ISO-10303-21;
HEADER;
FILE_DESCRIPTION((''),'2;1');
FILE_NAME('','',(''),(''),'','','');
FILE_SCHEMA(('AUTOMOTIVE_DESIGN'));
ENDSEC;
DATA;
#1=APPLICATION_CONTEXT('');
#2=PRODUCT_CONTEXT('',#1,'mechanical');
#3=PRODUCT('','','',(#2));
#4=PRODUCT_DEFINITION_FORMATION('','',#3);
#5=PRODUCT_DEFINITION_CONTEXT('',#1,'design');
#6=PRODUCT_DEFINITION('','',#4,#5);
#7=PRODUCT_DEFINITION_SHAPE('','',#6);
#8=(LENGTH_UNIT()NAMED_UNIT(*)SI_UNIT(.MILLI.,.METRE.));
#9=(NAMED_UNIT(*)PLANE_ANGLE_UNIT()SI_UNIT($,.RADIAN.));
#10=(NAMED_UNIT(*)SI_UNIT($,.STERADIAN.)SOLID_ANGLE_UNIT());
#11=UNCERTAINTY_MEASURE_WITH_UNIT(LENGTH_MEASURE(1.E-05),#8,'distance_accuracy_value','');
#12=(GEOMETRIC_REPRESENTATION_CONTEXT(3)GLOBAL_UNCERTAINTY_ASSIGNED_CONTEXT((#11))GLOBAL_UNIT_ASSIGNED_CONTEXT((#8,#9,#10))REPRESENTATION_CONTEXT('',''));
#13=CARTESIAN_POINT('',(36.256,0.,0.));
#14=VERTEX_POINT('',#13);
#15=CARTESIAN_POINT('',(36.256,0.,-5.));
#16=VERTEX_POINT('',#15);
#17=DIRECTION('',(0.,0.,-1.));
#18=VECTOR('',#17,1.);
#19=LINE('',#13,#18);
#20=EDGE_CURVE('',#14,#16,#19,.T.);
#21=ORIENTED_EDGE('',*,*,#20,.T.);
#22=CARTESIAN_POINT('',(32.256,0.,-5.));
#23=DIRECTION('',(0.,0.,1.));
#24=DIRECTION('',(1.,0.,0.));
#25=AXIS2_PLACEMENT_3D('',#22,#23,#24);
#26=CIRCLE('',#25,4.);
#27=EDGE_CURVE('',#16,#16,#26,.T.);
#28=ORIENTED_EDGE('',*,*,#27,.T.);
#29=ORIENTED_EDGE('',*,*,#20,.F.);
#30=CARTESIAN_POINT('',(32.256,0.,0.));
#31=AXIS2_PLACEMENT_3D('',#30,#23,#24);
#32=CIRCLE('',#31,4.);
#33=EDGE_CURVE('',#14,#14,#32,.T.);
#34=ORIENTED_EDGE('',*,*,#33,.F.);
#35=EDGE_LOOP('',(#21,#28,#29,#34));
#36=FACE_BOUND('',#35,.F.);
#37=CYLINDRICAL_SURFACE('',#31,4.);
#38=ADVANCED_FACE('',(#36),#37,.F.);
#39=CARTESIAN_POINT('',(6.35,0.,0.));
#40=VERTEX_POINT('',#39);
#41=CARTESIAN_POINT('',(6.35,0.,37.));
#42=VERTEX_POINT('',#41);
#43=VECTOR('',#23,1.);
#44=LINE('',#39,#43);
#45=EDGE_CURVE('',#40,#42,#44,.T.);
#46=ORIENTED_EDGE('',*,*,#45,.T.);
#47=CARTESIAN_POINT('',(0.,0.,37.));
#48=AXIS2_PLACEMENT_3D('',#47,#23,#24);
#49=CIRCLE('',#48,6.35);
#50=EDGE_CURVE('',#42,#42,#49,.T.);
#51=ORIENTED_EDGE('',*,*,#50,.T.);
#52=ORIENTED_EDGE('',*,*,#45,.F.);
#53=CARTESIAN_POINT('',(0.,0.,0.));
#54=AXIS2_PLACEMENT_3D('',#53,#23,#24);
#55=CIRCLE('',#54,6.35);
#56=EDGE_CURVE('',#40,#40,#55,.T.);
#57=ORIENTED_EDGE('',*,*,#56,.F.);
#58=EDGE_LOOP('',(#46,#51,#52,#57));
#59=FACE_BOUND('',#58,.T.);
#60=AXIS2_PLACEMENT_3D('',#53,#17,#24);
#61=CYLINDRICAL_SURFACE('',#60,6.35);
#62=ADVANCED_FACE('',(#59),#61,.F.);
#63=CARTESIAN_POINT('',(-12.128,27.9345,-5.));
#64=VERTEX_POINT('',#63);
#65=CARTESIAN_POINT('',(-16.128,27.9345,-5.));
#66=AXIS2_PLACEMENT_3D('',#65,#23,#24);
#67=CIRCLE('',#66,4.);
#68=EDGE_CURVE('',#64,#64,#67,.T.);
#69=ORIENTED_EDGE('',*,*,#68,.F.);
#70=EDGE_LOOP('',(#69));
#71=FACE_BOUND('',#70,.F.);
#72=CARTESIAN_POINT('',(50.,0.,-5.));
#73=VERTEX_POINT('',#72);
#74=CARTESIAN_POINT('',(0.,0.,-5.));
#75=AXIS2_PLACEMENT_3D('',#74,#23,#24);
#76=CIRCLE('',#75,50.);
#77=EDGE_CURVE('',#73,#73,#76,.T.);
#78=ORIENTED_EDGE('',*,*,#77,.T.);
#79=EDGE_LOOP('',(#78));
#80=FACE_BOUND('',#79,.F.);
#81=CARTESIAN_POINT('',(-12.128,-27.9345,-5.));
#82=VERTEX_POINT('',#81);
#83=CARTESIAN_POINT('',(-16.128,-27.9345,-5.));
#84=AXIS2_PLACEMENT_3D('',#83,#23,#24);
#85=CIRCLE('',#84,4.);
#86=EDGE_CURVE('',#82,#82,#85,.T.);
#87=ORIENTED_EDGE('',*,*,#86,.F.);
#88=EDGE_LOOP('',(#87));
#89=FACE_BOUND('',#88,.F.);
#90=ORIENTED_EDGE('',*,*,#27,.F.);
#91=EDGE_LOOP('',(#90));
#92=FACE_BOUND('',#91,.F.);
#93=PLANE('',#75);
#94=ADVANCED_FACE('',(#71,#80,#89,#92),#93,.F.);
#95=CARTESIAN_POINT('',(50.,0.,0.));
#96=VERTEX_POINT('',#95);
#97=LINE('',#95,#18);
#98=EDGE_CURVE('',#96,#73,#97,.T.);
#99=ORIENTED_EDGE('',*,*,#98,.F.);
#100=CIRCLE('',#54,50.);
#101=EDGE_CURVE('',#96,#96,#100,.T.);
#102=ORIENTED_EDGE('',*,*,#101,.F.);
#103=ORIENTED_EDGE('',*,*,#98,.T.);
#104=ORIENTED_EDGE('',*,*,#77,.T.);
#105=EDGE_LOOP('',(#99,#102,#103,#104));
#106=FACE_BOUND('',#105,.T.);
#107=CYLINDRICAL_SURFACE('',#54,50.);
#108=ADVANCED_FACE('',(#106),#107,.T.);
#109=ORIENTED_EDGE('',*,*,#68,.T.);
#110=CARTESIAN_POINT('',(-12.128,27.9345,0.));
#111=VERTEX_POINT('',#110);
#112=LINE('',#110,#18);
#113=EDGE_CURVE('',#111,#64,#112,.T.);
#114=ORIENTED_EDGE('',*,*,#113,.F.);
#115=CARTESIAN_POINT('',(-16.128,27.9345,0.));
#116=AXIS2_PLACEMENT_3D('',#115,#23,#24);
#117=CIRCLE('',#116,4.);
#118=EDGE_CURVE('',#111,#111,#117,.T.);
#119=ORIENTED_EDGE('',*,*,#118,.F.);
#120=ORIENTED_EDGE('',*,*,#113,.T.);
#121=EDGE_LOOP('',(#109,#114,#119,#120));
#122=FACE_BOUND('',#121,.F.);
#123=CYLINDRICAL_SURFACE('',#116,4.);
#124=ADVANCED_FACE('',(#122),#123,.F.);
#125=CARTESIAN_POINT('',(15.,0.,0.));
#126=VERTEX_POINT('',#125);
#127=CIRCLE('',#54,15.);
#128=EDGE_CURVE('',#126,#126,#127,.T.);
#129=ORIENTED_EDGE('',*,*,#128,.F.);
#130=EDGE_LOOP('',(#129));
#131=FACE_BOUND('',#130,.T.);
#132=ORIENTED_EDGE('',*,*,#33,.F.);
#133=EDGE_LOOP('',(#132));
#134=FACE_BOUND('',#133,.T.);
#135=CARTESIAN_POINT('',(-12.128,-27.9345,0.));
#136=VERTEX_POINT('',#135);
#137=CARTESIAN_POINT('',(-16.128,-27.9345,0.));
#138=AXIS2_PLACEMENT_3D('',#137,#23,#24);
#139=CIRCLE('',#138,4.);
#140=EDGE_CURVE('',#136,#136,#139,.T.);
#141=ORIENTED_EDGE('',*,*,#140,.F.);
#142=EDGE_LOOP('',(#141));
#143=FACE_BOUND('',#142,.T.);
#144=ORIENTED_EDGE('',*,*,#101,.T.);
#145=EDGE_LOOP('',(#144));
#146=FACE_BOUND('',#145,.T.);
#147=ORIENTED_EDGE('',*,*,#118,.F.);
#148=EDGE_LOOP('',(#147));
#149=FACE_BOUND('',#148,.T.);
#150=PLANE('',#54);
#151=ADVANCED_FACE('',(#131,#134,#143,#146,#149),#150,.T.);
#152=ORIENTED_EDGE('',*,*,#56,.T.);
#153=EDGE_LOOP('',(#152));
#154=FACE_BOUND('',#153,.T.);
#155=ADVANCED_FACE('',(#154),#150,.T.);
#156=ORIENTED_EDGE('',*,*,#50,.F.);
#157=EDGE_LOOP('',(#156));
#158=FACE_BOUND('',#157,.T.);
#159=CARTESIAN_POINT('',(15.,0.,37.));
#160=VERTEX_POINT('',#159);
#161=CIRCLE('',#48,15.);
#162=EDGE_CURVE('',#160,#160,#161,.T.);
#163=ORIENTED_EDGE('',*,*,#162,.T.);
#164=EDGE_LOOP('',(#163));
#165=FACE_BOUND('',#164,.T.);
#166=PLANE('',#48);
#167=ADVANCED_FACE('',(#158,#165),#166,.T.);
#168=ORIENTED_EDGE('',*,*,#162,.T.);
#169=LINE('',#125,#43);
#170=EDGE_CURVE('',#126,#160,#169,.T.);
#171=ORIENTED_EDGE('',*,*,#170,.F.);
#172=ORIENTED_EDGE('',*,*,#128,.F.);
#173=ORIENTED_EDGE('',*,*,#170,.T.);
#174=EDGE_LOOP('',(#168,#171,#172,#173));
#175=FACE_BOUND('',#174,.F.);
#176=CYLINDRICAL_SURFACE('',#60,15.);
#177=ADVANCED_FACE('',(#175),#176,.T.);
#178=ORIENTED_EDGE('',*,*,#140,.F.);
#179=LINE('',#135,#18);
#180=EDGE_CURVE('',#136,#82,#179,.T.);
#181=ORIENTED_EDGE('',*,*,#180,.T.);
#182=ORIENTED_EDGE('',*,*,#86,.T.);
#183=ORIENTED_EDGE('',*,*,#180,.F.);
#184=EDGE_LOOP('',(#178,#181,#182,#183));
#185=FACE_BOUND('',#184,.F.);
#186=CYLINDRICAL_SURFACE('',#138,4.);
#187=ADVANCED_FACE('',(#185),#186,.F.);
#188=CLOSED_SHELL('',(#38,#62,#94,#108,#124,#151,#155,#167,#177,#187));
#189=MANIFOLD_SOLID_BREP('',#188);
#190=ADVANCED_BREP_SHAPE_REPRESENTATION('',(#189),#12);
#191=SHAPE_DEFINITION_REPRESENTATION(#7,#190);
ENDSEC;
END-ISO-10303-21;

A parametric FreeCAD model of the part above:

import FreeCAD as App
import Part
import Sketcher
from FreeCAD import Vector

doc = App.newDocument("Part")
params = doc.addObject("Spreadsheet::Sheet", "Params")
for row, (alias, value) in enumerate([
    ("sketch1_diameter", "100 mm"),
    ("sketch1_diameter2", "8 mm"),
    ("pad1_length", "5 mm"),
    ("sketch2_diameter", "30 mm"),
    ("sketch2_diameter2", "12.7 mm"),
    ("pad2_length", "37 mm"),
], start=1):
    params.set(f"A{row}", alias)
    params.set(f"B{row}", "=" + value)
    params.setAlias(f"B{row}", alias)

body = doc.addObject("PartDesign::Body", "Body")

sketch1 = body.newObject("Sketcher::SketchObject", "Sketch")
sketch1.AttachmentSupport = (doc.getObject("XY_Plane"), [""])
sketch1.MapMode = "FlatFace"
sketch1.addGeometry(Part.Circle(Vector(0, 0, 0), Vector(0, 0, 1), 50), False)
sketch1.addGeometry(Part.Circle(Vector(-16.1, -27.9, 0), Vector(0, 0, 1), 4), False)
sketch1.addGeometry(Part.Circle(Vector(-16.1, 27.9, 0), Vector(0, 0, 1), 4), False)
sketch1.addGeometry(Part.Circle(Vector(32.3, 0, 0), Vector(0, 0, 1), 4), False)
sketch1.addConstraint(Sketcher.Constraint("Coincident", 0, 3, -1, 1))
sketch1.addConstraint(Sketcher.Constraint("Equal", 1, 2))
sketch1.addConstraint(Sketcher.Constraint("Equal", 2, 3))
sketch1.addConstraint(Sketcher.Constraint("Symmetric", 1, 3, 2, 3, -1))
sketch1.addConstraint(Sketcher.Constraint("PointOnObject", 3, 3, -1))
sketch1.addConstraint(Sketcher.Constraint("Diameter", 0, 100.0))
sketch1.addConstraint(Sketcher.Constraint("Diameter", 1, 8.0))
sketch1.addConstraint(Sketcher.Constraint("DistanceX", 1, 3, -1, 1, 16.128))
sketch1.addConstraint(Sketcher.Constraint("DistanceX", -1, 1, 3, 3, 32.256))
sketch1.addConstraint(Sketcher.Constraint("DistanceY", 1, 3, 2, 3, 55.869))
sketch1.setExpression("Constraints[5]", "Params.sketch1_diameter")
sketch1.setExpression("Constraints[6]", "Params.sketch1_diameter2")
pad1 = body.newObject("PartDesign::Pad", "Pad")
pad1.Profile = sketch1
pad1.setExpression("Length", "Params.pad1_length")
pad1.Reversed = True

sketch2 = body.newObject("Sketcher::SketchObject", "Sketch001")
sketch2.AttachmentSupport = (doc.getObject("XY_Plane"), [""])
sketch2.MapMode = "FlatFace"
sketch2.addGeometry(Part.Circle(Vector(0, 0, 0), Vector(0, 0, 1), 15), False)
sketch2.addGeometry(Part.Circle(Vector(0, 0, 0), Vector(0, 0, 1), 6), False)
sketch2.addConstraint(Sketcher.Constraint("Coincident", 0, 3, -1, 1))
sketch2.addConstraint(Sketcher.Constraint("Coincident", 1, 3, -1, 1))
sketch2.addConstraint(Sketcher.Constraint("Diameter", 0, 30.0))
sketch2.addConstraint(Sketcher.Constraint("Diameter", 1, 12.7))
sketch2.setExpression("Constraints[2]", "Params.sketch2_diameter")
sketch2.setExpression("Constraints[3]", "Params.sketch2_diameter2")
pad2 = body.newObject("PartDesign::Pad", "Pad001")
pad2.Profile = sketch2
pad2.setExpression("Length", "Params.pad2_length")

doc.recompute()
